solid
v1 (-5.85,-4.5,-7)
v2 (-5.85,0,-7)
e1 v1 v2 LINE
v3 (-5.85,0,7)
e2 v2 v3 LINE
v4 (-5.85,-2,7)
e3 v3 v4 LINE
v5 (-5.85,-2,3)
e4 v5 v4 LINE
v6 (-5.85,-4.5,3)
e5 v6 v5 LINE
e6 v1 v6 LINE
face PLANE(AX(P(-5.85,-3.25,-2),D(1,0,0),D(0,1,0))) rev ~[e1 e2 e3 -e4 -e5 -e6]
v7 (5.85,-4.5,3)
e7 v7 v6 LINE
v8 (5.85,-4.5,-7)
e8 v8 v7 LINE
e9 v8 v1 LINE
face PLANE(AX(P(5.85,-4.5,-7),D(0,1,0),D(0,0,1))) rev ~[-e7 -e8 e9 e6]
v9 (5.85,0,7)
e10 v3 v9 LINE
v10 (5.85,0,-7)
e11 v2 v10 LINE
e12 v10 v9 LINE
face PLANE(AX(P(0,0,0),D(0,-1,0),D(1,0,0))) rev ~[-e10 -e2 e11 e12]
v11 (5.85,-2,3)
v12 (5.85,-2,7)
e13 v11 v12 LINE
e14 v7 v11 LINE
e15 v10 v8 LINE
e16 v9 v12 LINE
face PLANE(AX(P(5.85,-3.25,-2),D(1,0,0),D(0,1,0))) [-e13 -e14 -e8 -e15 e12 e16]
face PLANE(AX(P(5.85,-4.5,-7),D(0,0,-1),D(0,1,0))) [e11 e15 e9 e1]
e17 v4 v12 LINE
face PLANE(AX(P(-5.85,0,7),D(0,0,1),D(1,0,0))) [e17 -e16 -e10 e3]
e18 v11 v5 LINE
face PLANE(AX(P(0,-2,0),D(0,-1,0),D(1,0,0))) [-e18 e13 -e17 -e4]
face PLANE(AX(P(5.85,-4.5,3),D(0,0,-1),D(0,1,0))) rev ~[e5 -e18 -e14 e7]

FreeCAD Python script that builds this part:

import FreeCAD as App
import Part
import Sketcher

V = App.Vector


def add_polygon(sketch, points):
    """Adds a closed chain of lines whose ends are joined by coincident constraints."""
    first, n = sketch.GeometryCount, len(points)
    for a, b in zip(points, points[1:] + points[:1]):
        sketch.addGeometry(Part.LineSegment(App.Vector(*a, 0), App.Vector(*b, 0)), False)
    for i in range(n):
        sketch.addConstraint(Sketcher.Constraint("Coincident", first + i, 2, first + (i + 1) % n, 1))

doc = App.newDocument("Part")
body = doc.addObject("PartDesign::Body", "Body")

# Sketch on XZ plane
sketch1 = body.newObject("Sketcher::SketchObject", "Sketch")
sketch1.AttachmentSupport = (doc.getObject("XZ_Plane"), [""])
sketch1.MapMode = "FlatFace"
add_polygon(sketch1, [(-6, 7), (-6, -7), (6, -7), (6, 7)])  # lines 0-3
sketch1.addConstraint([
    Sketcher.Constraint("Vertical", 0),
    Sketcher.Constraint("Horizontal", 1),
    Sketcher.Constraint("Vertical", 2),
    Sketcher.Constraint("Horizontal", 3),
    Sketcher.Constraint("Symmetric", 0, 2, 2, 2, -1, 1),
    Sketcher.Constraint("DistanceY", 0, 2, 0, 1, 14.0),
    Sketcher.Constraint("DistanceX", 1, 1, 1, 2, 11.7),
])
pad1 = body.newObject("PartDesign::Pad", "Pad")
pad1.Profile = sketch1
pad1.Length = 2

# Sketch on YZ plane
sketch2 = body.newObject("Sketcher::SketchObject", "Sketch001")
sketch2.AttachmentSupport = (doc.getObject("YZ_Plane"), [""])
sketch2.MapMode = "FlatFace"
sketch2.AttachmentOffset = App.Placement(V(0, 0, 5.85), App.Rotation())
add_polygon(sketch2, [(-4.5, 3), (-4.5, -7), (-2, -7), (-2, 3)])  # lines 0-3
sketch2.addConstraint([
    Sketcher.Constraint("Vertical", 0),
    Sketcher.Constraint("Horizontal", 1),
    Sketcher.Constraint("Vertical", 2),
    Sketcher.Constraint("Horizontal", 3),
    Sketcher.Constraint("DistanceY", 0, 2, 0, 1, 10.0),
    Sketcher.Constraint("DistanceX", 1, 1, 1, 2, 2.5),
    Sketcher.Constraint("DistanceY", 0, 2, -1, 1, 7.0),
    Sketcher.Constraint("DistanceX", 1, 2, -1, 1, 2.0),
])
pad2 = body.newObject("PartDesign::Pad", "Pad001")
pad2.Profile = sketch2
pad2.Length = 11.7
pad2.Reversed = True

doc.recompute()
